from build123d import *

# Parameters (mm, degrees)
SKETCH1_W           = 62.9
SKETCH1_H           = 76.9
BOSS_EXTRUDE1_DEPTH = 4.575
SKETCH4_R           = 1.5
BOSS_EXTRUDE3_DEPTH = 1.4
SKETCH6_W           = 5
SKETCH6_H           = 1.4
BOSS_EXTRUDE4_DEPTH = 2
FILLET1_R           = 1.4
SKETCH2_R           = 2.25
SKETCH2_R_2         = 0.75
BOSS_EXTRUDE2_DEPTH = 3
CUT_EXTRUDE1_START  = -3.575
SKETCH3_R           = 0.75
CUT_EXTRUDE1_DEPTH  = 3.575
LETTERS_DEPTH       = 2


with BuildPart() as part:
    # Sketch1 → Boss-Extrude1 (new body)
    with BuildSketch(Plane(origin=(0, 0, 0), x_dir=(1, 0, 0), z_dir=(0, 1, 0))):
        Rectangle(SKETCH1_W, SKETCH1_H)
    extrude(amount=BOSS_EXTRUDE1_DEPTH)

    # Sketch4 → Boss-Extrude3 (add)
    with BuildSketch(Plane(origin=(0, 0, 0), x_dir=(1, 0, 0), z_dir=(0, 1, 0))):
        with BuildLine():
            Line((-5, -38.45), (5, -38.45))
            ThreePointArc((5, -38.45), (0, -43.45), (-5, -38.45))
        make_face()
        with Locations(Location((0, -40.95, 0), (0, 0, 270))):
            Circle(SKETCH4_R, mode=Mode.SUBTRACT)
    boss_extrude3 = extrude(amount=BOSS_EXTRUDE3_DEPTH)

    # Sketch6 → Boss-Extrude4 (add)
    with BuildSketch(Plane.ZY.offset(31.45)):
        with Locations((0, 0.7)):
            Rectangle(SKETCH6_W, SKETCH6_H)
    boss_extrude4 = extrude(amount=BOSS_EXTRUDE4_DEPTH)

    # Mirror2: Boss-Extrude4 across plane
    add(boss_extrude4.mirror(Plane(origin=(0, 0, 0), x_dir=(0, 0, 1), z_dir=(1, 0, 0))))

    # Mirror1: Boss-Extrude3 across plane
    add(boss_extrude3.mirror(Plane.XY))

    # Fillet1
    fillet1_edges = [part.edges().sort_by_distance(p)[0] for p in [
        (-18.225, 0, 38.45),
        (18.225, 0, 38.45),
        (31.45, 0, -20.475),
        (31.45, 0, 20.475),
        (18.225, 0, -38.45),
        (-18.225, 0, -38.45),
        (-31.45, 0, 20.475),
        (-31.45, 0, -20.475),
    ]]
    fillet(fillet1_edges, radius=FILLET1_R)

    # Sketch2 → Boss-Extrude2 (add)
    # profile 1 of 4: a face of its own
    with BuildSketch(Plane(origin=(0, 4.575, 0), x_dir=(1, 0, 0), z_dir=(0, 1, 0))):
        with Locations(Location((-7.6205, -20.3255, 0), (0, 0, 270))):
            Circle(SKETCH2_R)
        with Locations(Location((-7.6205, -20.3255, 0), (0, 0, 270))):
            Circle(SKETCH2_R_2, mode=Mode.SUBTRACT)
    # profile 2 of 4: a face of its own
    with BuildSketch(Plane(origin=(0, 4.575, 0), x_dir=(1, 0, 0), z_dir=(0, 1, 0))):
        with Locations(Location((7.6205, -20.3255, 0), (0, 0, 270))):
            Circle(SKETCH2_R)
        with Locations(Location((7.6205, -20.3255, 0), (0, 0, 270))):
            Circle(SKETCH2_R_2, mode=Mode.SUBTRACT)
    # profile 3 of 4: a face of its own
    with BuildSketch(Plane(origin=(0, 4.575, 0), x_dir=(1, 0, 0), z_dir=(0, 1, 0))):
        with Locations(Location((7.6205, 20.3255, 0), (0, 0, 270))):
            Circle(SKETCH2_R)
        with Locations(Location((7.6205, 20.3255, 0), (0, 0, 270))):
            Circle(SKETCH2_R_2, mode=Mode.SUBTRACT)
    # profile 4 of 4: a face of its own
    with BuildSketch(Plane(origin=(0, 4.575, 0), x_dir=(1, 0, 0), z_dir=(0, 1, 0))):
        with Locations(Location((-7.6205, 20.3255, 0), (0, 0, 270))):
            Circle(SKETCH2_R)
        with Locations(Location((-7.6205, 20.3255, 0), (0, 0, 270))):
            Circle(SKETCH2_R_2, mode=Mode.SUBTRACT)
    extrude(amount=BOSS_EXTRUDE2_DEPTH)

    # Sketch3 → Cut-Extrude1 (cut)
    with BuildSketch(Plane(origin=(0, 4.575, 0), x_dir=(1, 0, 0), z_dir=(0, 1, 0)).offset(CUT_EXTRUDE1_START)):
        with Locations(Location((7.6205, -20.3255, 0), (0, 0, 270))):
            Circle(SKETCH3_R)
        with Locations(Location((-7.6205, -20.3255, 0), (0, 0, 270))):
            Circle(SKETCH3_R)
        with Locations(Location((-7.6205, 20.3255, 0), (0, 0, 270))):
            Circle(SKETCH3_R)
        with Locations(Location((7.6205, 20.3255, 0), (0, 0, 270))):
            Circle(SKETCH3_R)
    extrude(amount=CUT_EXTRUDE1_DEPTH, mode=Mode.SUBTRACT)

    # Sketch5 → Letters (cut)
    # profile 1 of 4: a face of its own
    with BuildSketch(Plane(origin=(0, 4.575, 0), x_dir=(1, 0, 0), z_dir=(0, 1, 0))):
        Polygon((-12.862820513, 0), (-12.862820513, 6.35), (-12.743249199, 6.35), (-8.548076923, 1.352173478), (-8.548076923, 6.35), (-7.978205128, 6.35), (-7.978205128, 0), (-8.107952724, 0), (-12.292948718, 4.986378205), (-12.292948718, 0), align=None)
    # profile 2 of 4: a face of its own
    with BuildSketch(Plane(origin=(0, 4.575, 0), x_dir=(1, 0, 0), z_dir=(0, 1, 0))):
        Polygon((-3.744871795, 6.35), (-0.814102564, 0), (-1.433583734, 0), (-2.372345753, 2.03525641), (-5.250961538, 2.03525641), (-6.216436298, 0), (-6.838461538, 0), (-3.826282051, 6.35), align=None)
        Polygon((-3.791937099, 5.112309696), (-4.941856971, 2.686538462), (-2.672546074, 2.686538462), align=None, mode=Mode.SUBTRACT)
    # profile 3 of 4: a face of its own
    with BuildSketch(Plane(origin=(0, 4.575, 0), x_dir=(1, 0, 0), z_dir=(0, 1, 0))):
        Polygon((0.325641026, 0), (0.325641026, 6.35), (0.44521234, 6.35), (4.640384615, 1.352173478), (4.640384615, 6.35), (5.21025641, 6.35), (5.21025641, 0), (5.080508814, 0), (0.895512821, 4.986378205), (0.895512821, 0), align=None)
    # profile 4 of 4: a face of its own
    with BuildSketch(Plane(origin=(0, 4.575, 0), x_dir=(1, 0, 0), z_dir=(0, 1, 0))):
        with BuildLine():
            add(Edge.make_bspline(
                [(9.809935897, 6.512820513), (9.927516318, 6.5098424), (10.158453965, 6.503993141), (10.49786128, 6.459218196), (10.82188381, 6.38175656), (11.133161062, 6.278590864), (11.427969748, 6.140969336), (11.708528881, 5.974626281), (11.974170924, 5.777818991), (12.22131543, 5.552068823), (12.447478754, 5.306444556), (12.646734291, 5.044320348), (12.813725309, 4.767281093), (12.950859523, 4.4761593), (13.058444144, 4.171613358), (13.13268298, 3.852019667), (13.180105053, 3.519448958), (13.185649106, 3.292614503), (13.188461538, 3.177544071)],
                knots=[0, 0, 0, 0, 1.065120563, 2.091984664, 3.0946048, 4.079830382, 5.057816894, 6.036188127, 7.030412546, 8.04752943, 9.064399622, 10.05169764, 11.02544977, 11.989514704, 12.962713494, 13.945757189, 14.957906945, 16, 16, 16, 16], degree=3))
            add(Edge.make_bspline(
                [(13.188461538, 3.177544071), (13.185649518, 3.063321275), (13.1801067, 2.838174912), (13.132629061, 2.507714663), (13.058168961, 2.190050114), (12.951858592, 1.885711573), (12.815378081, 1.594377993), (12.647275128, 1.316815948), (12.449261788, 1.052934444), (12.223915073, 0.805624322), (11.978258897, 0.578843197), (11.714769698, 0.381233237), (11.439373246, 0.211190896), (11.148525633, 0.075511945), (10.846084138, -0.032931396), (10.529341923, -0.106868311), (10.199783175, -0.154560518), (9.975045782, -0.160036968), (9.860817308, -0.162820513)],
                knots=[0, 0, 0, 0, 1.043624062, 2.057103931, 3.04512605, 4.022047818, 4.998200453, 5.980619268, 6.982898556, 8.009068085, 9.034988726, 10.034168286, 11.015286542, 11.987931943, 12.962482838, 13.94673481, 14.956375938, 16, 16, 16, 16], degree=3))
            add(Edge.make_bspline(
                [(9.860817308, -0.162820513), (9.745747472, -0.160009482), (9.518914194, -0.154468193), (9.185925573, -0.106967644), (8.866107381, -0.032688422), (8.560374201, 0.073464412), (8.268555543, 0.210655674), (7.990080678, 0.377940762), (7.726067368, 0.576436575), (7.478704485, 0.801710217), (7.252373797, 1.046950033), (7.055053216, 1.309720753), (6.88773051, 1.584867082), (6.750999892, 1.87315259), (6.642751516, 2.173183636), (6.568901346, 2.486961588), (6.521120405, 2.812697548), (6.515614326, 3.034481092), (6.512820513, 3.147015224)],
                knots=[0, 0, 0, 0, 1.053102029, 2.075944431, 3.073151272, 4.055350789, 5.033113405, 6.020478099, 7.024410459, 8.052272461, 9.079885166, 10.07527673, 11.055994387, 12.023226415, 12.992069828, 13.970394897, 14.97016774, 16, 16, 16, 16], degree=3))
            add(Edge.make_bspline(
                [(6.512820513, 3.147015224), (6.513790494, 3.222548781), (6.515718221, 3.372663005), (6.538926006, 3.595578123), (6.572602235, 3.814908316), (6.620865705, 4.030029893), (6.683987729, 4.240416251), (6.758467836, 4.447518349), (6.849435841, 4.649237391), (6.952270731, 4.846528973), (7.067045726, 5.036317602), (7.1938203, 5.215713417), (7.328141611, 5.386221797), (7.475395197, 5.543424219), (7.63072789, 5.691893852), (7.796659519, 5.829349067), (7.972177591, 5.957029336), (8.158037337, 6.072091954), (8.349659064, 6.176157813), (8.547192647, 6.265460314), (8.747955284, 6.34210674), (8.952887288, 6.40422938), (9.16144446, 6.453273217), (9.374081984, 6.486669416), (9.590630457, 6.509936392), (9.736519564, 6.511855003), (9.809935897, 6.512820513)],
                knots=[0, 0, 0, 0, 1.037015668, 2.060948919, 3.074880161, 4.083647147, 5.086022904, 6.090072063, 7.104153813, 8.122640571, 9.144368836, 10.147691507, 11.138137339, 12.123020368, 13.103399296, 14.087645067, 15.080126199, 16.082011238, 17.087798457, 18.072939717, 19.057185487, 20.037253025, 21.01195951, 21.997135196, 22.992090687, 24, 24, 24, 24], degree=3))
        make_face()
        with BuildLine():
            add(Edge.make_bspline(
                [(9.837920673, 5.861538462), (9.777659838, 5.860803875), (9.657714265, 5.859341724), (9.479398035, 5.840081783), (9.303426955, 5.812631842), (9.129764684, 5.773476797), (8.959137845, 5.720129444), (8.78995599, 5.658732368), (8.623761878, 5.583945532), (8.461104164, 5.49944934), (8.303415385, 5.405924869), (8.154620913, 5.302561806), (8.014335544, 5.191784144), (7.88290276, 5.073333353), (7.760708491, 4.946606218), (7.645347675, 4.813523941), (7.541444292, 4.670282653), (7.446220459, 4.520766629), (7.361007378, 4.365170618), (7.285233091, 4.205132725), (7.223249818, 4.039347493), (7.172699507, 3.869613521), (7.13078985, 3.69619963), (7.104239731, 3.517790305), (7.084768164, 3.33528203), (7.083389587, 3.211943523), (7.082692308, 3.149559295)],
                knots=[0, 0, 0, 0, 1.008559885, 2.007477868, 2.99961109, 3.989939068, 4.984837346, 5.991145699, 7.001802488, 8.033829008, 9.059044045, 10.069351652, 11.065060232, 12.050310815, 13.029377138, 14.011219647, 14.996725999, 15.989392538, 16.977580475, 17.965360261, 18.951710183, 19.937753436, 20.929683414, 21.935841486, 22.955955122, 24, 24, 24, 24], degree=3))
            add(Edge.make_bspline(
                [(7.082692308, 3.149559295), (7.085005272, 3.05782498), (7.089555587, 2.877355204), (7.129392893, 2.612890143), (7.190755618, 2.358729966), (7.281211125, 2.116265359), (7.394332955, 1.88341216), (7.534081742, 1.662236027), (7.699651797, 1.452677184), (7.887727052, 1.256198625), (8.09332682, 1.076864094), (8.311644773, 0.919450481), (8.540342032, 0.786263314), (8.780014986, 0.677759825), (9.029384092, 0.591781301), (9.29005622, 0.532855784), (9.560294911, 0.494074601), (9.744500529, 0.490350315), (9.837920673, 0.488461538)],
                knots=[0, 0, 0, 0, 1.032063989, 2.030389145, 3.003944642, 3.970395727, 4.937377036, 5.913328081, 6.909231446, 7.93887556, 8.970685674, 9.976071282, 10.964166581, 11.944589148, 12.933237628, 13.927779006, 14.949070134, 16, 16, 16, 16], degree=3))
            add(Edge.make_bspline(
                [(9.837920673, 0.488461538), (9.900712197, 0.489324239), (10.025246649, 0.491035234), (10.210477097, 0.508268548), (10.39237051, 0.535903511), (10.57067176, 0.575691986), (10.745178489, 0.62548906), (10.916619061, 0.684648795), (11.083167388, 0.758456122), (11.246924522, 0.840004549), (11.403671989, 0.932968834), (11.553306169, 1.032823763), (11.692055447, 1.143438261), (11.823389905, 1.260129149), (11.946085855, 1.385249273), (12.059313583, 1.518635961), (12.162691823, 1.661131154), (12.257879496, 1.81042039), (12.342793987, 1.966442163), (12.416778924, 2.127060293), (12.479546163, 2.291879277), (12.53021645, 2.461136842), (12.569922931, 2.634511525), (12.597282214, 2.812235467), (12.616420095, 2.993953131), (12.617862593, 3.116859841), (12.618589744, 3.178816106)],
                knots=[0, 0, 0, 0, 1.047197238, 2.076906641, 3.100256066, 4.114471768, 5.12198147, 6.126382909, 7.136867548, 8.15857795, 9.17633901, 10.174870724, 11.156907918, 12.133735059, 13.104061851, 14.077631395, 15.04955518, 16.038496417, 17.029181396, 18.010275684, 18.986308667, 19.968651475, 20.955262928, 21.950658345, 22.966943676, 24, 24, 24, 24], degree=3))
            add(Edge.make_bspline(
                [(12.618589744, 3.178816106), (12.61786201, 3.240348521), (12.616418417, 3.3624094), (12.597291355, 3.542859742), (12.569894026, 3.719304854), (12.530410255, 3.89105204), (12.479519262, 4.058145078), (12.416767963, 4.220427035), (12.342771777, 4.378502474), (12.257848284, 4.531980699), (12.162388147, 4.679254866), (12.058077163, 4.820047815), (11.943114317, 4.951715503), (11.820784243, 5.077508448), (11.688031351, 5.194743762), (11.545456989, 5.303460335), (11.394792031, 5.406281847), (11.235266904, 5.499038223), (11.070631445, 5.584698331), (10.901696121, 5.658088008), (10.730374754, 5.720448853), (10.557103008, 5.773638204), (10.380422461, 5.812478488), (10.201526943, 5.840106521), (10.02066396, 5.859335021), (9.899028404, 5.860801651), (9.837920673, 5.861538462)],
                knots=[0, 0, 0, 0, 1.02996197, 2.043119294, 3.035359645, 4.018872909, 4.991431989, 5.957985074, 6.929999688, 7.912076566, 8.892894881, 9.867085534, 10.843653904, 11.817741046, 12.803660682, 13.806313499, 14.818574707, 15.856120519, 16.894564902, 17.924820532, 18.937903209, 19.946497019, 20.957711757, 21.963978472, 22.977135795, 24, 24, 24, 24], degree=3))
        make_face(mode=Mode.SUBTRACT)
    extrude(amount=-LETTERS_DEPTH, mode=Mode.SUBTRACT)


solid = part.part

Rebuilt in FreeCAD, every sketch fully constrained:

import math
import FreeCAD as App
import Part
import Sketcher
from FreeCAD import Vector
Q = App.Units.Quantity


def edges_at(feature, points):
    """Names of the edges that pass closest to the given points."""
    edges = feature.Shape.Edges
    near = lambda p: min(range(len(edges)), key=lambda i: edges[i].distToShape(Part.Vertex(*p))[0])
    return sorted({f"Edge{near(p) + 1}" for p in points})

doc = App.newDocument("Part")
params = doc.addObject("Spreadsheet::Sheet", "Params")
for row, (alias, value) in enumerate([
    ("sketch1_width", "62.9 mm"),
    ("sketch1_height", "76.9 mm"),
    ("pad1_length", "4.575 mm"),
    ("sketch2_diameter", "3 mm"),
    ("sketch2_radius", "5 mm"),
    ("pad2_length", "1.4 mm"),
    ("sketch3_height", "5 mm"),
    ("sketch3_width", "1.4 mm"),
    ("pad3_length", "2 mm"),
    ("fillet_radius", "1.4 mm"),
    ("sketch4_diameter", "4.5 mm"),
    ("sketch4_diameter2", "1.5 mm"),
    ("pad4_length", "3 mm"),
    ("sketch5_diameter", "1.5 mm"),
    ("pocket1_length", "3.575 mm"),
    ("sketch6_height", "6.35 mm"),
    ("pocket2_length", "2 mm"),
], start=1):
    params.set(f"A{row}", alias)
    params.set(f"B{row}", "=" + value)
    params.setAlias(f"B{row}", alias)

body = doc.addObject("PartDesign::Body", "Body")

sketch1 = body.newObject("Sketcher::SketchObject", "Sketch")
sketch1.AttachmentSupport = (doc.getObject("XZ_Plane"), [""])
sketch1.MapMode = "FlatFace"
sketch1.addGeometry([
    Part.LineSegment(Vector(-31, -38, 0), Vector(-31, 38, 0)),
    Part.LineSegment(Vector(-31, 38, 0), Vector(31, 38, 0)),
    Part.LineSegment(Vector(31, 38, 0), Vector(31, -38, 0)),
    Part.LineSegment(Vector(31, -38, 0), Vector(-31, -38, 0)),
], False)
sketch1.addConstraint([
    Sketcher.Constraint("Coincident", 0, 2, 1, 1),
    Sketcher.Constraint("Coincident", 1, 2, 2, 1),
    Sketcher.Constraint("Coincident", 2, 2, 3, 1),
    Sketcher.Constraint("Coincident", 3, 2, 0, 1),
    Sketcher.Constraint("Vertical", 0),
    Sketcher.Constraint("Horizontal", 1),
    Sketcher.Constraint("Vertical", 2),
    Sketcher.Constraint("Horizontal", 3),
    Sketcher.Constraint("Symmetric", 0, 2, 2, 2, -1, 1),
    Sketcher.Constraint("DistanceX", 1, 1, 1, 2, Q("62.9 mm")),
    Sketcher.Constraint("DistanceY", 0, 1, 0, 2, Q("76.9 mm")),
])
sketch1.setExpression("Constraints[9]", "Params.sketch1_width")
sketch1.setExpression("Constraints[10]", "Params.sketch1_height")
pad1 = body.newObject("PartDesign::Pad", "Pad")
pad1.Profile = sketch1
pad1.setExpression("Length", "Params.pad1_length")
pad1.Reversed = True

sketch2 = body.newObject("Sketcher::SketchObject", "Sketch001")
sketch2.AttachmentSupport = (doc.getObject("XZ_Plane"), [""])
sketch2.MapMode = "FlatFace"
sketch2.addGeometry([
    Part.LineSegment(Vector(5, 38.5, 0), Vector(-5, 38.5, 0)),
    Part.ArcOfCircle(Part.Circle(Vector(0, 38.5, 0), Vector(0, 0, 1), 5), math.radians(0), math.radians(180)),
    Part.Circle(Vector(0, 41, 0), Vector(0, 0, 1), 1.5),
], False)
sketch2.addConstraint([
    Sketcher.Constraint("Coincident", 0, 1, 1, 1),
    Sketcher.Constraint("Coincident", 1, 2, 0, 2),
    Sketcher.Constraint("Horizontal", 0),
    Sketcher.Constraint("PointOnObject", 1, 3, -2),
    Sketcher.Constraint("PointOnObject", 2, 3, -2),
    Sketcher.Constraint("Horizontal", 1, 3, 0, 1),
    Sketcher.Constraint("Diameter", 2, Q("3 mm")),
    Sketcher.Constraint("Radius", 1, Q("5 mm")),
    Sketcher.Constraint("DistanceY", 1, 3, 2, 3, Q("2.5 mm")),
    Sketcher.Constraint("DistanceY", -1, 1, 1, 3, Q("38.45 mm")),
])
sketch2.setExpression("Constraints[6]", "Params.sketch2_diameter")
sketch2.setExpression("Constraints[7]", "Params.sketch2_radius")
pad2 = body.newObject("PartDesign::Pad", "Pad001")
pad2.Profile = sketch2
pad2.setExpression("Length", "Params.pad2_length")
pad2.Reversed = True

sketch3 = body.newObject("Sketcher::SketchObject", "Sketch002")
sketch3.AttachmentSupport = (doc.getObject("YZ_Plane"), [""])
sketch3.MapMode = "FlatFace"
sketch3.AttachmentOffset = App.Placement(Vector(0, 0, -31.45), App.Rotation())
sketch3.addGeometry([
    Part.LineSegment(Vector(1.4, -2.5, 0), Vector(0, -2.5, 0)),
    Part.LineSegment(Vector(0, -2.5, 0), Vector(0, 2.5, 0)),
    Part.LineSegment(Vector(0, 2.5, 0), Vector(1.4, 2.5, 0)),
    Part.LineSegment(Vector(1.4, 2.5, 0), Vector(1.4, -2.5, 0)),
], False)
sketch3.addConstraint([
    Sketcher.Constraint("Coincident", 0, 2, 1, 1),
    Sketcher.Constraint("Coincident", 1, 2, 2, 1),
    Sketcher.Constraint("Coincident", 2, 2, 3, 1),
    Sketcher.Constraint("Coincident", 3, 2, 0, 1),
    Sketcher.Constraint("Horizontal", 0),
    Sketcher.Constraint("Vertical", 1),
    Sketcher.Constraint("Horizontal", 2),
    Sketcher.Constraint("Vertical", 3),
    Sketcher.Constraint("Symmetric", 0, 2, 1, 2, -1, 1),
    Sketcher.Constraint("DistanceY", 1, 1, 1, 2, Q("5 mm")),
    Sketcher.Constraint("DistanceX", 0, 2, 0, 1, Q("1.4 mm")),
])
sketch3.setExpression("Constraints[9]", "Params.sketch3_height")
sketch3.setExpression("Constraints[10]", "Params.sketch3_width")
pad3 = body.newObject("PartDesign::Pad", "Pad002")
pad3.Profile = sketch3
pad3.setExpression("Length", "Params.pad3_length")
pad3.Reversed = True
doc.recompute()

mirrored = body.newObject("PartDesign::Mirrored", "Mirrored")
mirrored.Originals = [pad3]
mirrored.MirrorPlane = (doc.getObject("YZ_Plane"), [""])
body.Tip = mirrored
doc.recompute()

mirrored2 = body.newObject("PartDesign::Mirrored", "Mirrored001")
mirrored2.Originals = [pad2]
mirrored2.MirrorPlane = (doc.getObject("XY_Plane"), [""])
body.Tip = mirrored2
doc.recompute()

fillet = body.newObject("PartDesign::Fillet", "Fillet")
fillet.Base = (mirrored2, edges_at(mirrored2, [
    (-18.225, 0, 38.45),
    (18.225, 0, 38.45),
    (31.45, 0, -20.475),
    (31.45, 0, 20.475),
    (18.225, 0, -38.45),
    (-18.225, 0, -38.45),
    (-31.45, 0, 20.475),
    (-31.45, 0, -20.475),
]))
fillet.setExpression("Radius", "Params.fillet_radius")

sketch4 = body.newObject("Sketcher::SketchObject", "Sketch003")
sketch4.AttachmentSupport = (doc.getObject("XZ_Plane"), [""])
sketch4.MapMode = "FlatFace"
sketch4.AttachmentOffset = App.Placement(Vector(0, 0, -4.575), App.Rotation())
sketch4.addGeometry([
    Part.Circle(Vector(-7.6, 20.3, 0), Vector(0, 0, 1), 2.2),
    Part.Circle(Vector(-7.6, 20.3, 0), Vector(0, 0, 1), 0.8),
    Part.Circle(Vector(7.6, 20.3, 0), Vector(0, 0, 1), 2.2),
    Part.Circle(Vector(7.6, 20.3, 0), Vector(0, 0, 1), 0.8),
    Part.Circle(Vector(7.6, -20.3, 0), Vector(0, 0, 1), 2.2),
    Part.Circle(Vector(7.6, -20.3, 0), Vector(0, 0, 1), 0.8),
    Part.Circle(Vector(-7.6, -20.3, 0), Vector(0, 0, 1), 2.2),
    Part.Circle(Vector(-7.6, -20.3, 0), Vector(0, 0, 1), 0.8),
], False)
sketch4.addConstraint([
    Sketcher.Constraint("Coincident", 1, 3, 0, 3),
    Sketcher.Constraint("Coincident", 3, 3, 2, 3),
    Sketcher.Constraint("Coincident", 5, 3, 4, 3),
    Sketcher.Constraint("Coincident", 7, 3, 6, 3),
    Sketcher.Constraint("Equal", 0, 2),
    Sketcher.Constraint("Equal", 1, 3),
    Sketcher.Constraint("Equal", 2, 4),
    Sketcher.Constraint("Equal", 3, 5),
    Sketcher.Constraint("Equal", 4, 6),
    Sketcher.Constraint("Equal", 5, 7),
    Sketcher.Constraint("Symmetric", 0, 3, 4, 3, -1, 1),
    Sketcher.Constraint("Symmetric", 2, 3, 6, 3, -1, 1),
    Sketcher.Constraint("Symmetric", 0, 3, 2, 3, -2),
    Sketcher.Constraint("Diameter", 0, Q("4.5 mm")),
    Sketcher.Constraint("Diameter", 1, Q("1.5 mm")),
    Sketcher.Constraint("DistanceX", 0, 3, 2, 3, Q("15.241 mm")),
    Sketcher.Constraint("DistanceY", 4, 3, 2, 3, Q("40.651 mm")),
])
sketch4.setExpression("Constraints[13]", "Params.sketch4_diameter")
sketch4.setExpression("Constraints[14]", "Params.sketch4_diameter2")
pad4 = body.newObject("PartDesign::Pad", "Pad003")
pad4.Profile = sketch4
pad4.setExpression("Length", "Params.pad4_length")
pad4.Reversed = True

sketch5 = body.newObject("Sketcher::SketchObject", "Sketch004")
sketch5.AttachmentSupport = (doc.getObject("XZ_Plane"), [""])
sketch5.MapMode = "FlatFace"
sketch5.AttachmentOffset = App.Placement(Vector(0, 0, -1), App.Rotation())
sketch5.addGeometry([
    Part.Circle(Vector(7.6, 20.3, 0), Vector(0, 0, 1), 0.8),
    Part.Circle(Vector(-7.6, 20.3, 0), Vector(0, 0, 1), 0.8),
    Part.Circle(Vector(-7.6, -20.3, 0), Vector(0, 0, 1), 0.8),
    Part.Circle(Vector(7.6, -20.3, 0), Vector(0, 0, 1), 0.8),
], False)
sketch5.addConstraint([
    Sketcher.Constraint("Equal", 0, 1),
    Sketcher.Constraint("Equal", 1, 2),
    Sketcher.Constraint("Equal", 2, 3),
    Sketcher.Constraint("Symmetric", 0, 3, 2, 3, -1, 1),
    Sketcher.Constraint("Symmetric", 1, 3, 3, 3, -1, 1),
    Sketcher.Constraint("Symmetric", 0, 3, 1, 3, -2),
    Sketcher.Constraint("Diameter", 0, Q("1.5 mm")),
    Sketcher.Constraint("DistanceX", 1, 3, 0, 3, Q("15.241 mm")),
    Sketcher.Constraint("DistanceY", 2, 3, 1, 3, Q("40.651 mm")),
])
sketch5.setExpression("Constraints[6]", "Params.sketch5_diameter")
pocket1 = body.newObject("PartDesign::Pocket", "Pocket")
pocket1.Profile = sketch5
pocket1.setExpression("Length", "Params.pocket1_length")

sketch6 = body.newObject("Sketcher::SketchObject", "Sketch005")
sketch6.AttachmentSupport = (doc.getObject("XZ_Plane"), [""])
sketch6.MapMode = "FlatFace"
sketch6.AttachmentOffset = App.Placement(Vector(0, 0, -4.575), App.Rotation())
sketch6.addGeometry([
    Part.LineSegment(Vector(-12.862821, -6.35, 0), Vector(-12.862821, 0, 0)),
    Part.LineSegment(Vector(-12.862821, 0, 0), Vector(-12.292949, 0, 0)),
    Part.LineSegment(Vector(-12.292949, 0, 0), Vector(-12.292949, -4.986378, 0)),
    Part.LineSegment(Vector(-12.292949, -4.986378, 0), Vector(-8.107953, 0, 0)),
    Part.LineSegment(Vector(-8.107953, 0, 0), Vector(-7.978205, 0, 0)),
    Part.LineSegment(Vector(-7.978205, 0, 0), Vector(-7.978205, -6.35, 0)),
    Part.LineSegment(Vector(-7.978205, -6.35, 0), Vector(-8.548077, -6.35, 0)),
    Part.LineSegment(Vector(-8.548077, -6.35, 0), Vector(-8.548077, -1.352173, 0)),
    Part.LineSegment(Vector(-8.548077, -1.352173, 0), Vector(-12.743249, -6.35, 0)),
    Part.LineSegment(Vector(-12.743249, -6.35, 0), Vector(-12.862821, -6.35, 0)),
    Part.LineSegment(Vector(-0.814103, 0, 0), Vector(-3.744872, -6.35, 0)),
    Part.LineSegment(Vector(-3.744872, -6.35, 0), Vector(-3.826282, -6.35, 0)),
    Part.LineSegment(Vector(-3.826282, -6.35, 0), Vector(-6.838462, 0, 0)),
    Part.LineSegment(Vector(-6.838462, 0, 0), Vector(-6.216436, 0, 0)),
    Part.LineSegment(Vector(-6.216436, 0, 0), Vector(-5.250962, -2.035256, 0)),
    Part.LineSegment(Vector(-5.250962, -2.035256, 0), Vector(-2.372346, -2.035256, 0)),
    Part.LineSegment(Vector(-2.372346, -2.035256, 0), Vector(-1.433584, 0, 0)),
    Part.LineSegment(Vector(-1.433584, 0, 0), Vector(-0.814103, 0, 0)),
    Part.LineSegment(Vector(-3.791937, -5.11231, 0), Vector(-2.672546, -2.686538, 0)),
    Part.LineSegment(Vector(-2.672546, -2.686538, 0), Vector(-4.941857, -2.686538, 0)),
    Part.LineSegment(Vector(-4.941857, -2.686538, 0), Vector(-3.791937, -5.11231, 0)),
    Part.LineSegment(Vector(0.325641, -6.35, 0), Vector(0.325641, 0, 0)),
    Part.LineSegment(Vector(0.325641, 0, 0), Vector(0.895513, 0, 0)),
    Part.LineSegment(Vector(0.895513, 0, 0), Vector(0.895513, -4.986378, 0)),
    Part.LineSegment(Vector(0.895513, -4.986378, 0), Vector(5.080509, 0, 0)),
    Part.LineSegment(Vector(5.080509, 0, 0), Vector(5.210256, 0, 0)),
    Part.LineSegment(Vector(5.210256, 0, 0), Vector(5.210256, -6.35, 0)),
    Part.LineSegment(Vector(5.210256, -6.35, 0), Vector(4.640385, -6.35, 0)),
    Part.LineSegment(Vector(4.640385, -6.35, 0), Vector(4.640385, -1.352173, 0)),
    Part.LineSegment(Vector(4.640385, -1.352173, 0), Vector(0.445212, -6.35, 0)),
    Part.LineSegment(Vector(0.445212, -6.35, 0), Vector(0.325641, -6.35, 0)),
    Part.BSplineCurve([Vector(9.809936, -6.512821, 0), Vector(9.927516, -6.509842, 0), Vector(10.158454, -6.503993, 0), Vector(10.497861, -6.459218, 0), Vector(10.821884, -6.381757, 0), Vector(11.133161, -6.278591, 0), Vector(11.42797, -6.140969, 0), Vector(11.708529, -5.974626, 0), Vector(11.974171, -5.777819, 0), Vector(12.221315, -5.552069, 0), Vector(12.447479, -5.306445, 0), Vector(12.646734, -5.04432, 0), Vector(12.813725, -4.767281, 0), Vector(12.95086, -4.476159, 0), Vector(13.058444, -4.171613, 0), Vector(13.132683, -3.85202, 0), Vector(13.180105, -3.519449, 0), Vector(13.185649, -3.292615, 0), Vector(13.188462, -3.177544, 0)], [4, 1, 1, 1, 1, 1, 1, 1, 1, 1, 1, 1, 1, 1, 1, 1, 4], [0, 1.065120563, 2.091984664, 3.0946048, 4.079830382, 5.057816894, 6.036188127, 7.030412546, 8.04752943, 9.064399622, 10.05169764, 11.02544977, 11.989514704, 12.962713494, 13.945757189, 14.957906945, 16], False, 3, [1, 1, 1, 1, 1, 1, 1, 1, 1, 1, 1, 1, 1, 1, 1, 1, 1, 1, 1], False),
    Part.BSplineCurve([Vector(6.512821, -3.147015, 0), Vector(6.51379, -3.222549, 0), Vector(6.515718, -3.372663, 0), Vector(6.538926, -3.595578, 0), Vector(6.572602, -3.814908, 0), Vector(6.620866, -4.03003, 0), Vector(6.683988, -4.240416, 0), Vector(6.758468, -4.447518, 0), Vector(6.849436, -4.649237, 0), Vector(6.952271, -4.846529, 0), Vector(7.067046, -5.036318, 0), Vector(7.19382, -5.215713, 0), Vector(7.328142, -5.386222, 0), Vector(7.475395, -5.543424, 0), Vector(7.630728, -5.691894, 0), Vector(7.79666, -5.829349, 0), Vector(7.972178, -5.957029, 0), Vector(8.158037, -6.072092, 0), Vector(8.349659, -6.176158, 0), Vector(8.547193, -6.26546, 0), Vector(8.747955, -6.342107, 0), Vector(8.952887, -6.404229, 0), Vector(9.161444, -6.453273, 0), Vector(9.374082, -6.486669, 0), Vector(9.59063, -6.509936, 0), Vector(9.73652, -6.511855, 0), Vector(9.809936, -6.512821, 0)], [4, 1, 1, 1, 1, 1, 1, 1, 1, 1, 1, 1, 1, 1, 1, 1, 1, 1, 1, 1, 1, 1, 1, 1, 4], [0, 1.037015668, 2.060948919, 3.074880161, 4.083647147, 5.086022904, 6.090072063, 7.104153813, 8.122640571, 9.144368836, 10.147691507, 11.138137339, 12.123020368, 13.103399296, 14.087645067, 15.080126199, 16.082011238, 17.087798457, 18.072939717, 19.057185487, 20.037253025, 21.01195951, 21.997135196, 22.992090687, 24], False, 3, [1, 1, 1, 1, 1, 1, 1, 1, 1, 1, 1, 1, 1, 1, 1, 1, 1, 1, 1, 1, 1, 1, 1, 1, 1, 1, 1], False),
    Part.BSplineCurve([Vector(9.860817, 0.162821, 0), Vector(9.745747, 0.160009, 0), Vector(9.518914, 0.154468, 0), Vector(9.185926, 0.106968, 0), Vector(8.866107, 0.032688, 0), Vector(8.560374, -0.073464, 0), Vector(8.268556, -0.210656, 0), Vector(7.990081, -0.377941, 0), Vector(7.726067, -0.576437, 0), Vector(7.478704, -0.80171, 0), Vector(7.252374, -1.04695, 0), Vector(7.055053, -1.309721, 0), Vector(6.887731, -1.584867, 0), Vector(6.751, -1.873153, 0), Vector(6.642752, -2.173184, 0), Vector(6.568901, -2.486962, 0), Vector(6.52112, -2.812698, 0), Vector(6.515614, -3.034481, 0), Vector(6.512821, -3.147015, 0)], [4, 1, 1, 1, 1, 1, 1, 1, 1, 1, 1, 1, 1, 1, 1, 1, 4], [0, 1.053102029, 2.075944431, 3.073151272, 4.055350789, 5.033113405, 6.020478099, 7.024410459, 8.052272461, 9.079885166, 10.07527673, 11.055994387, 12.023226415, 12.992069828, 13.970394897, 14.97016774, 16], False, 3, [1, 1, 1, 1, 1, 1, 1, 1, 1, 1, 1, 1, 1, 1, 1, 1, 1, 1, 1], False),
    Part.BSplineCurve([Vector(13.188462, -3.177544, 0), Vector(13.18565, -3.063321, 0), Vector(13.180107, -2.838175, 0), Vector(13.132629, -2.507715, 0), Vector(13.058169, -2.19005, 0), Vector(12.951859, -1.885712, 0), Vector(12.815378, -1.594378, 0), Vector(12.647275, -1.316816, 0), Vector(12.449262, -1.052934, 0), Vector(12.223915, -0.805624, 0), Vector(11.978259, -0.578843, 0), Vector(11.71477, -0.381233, 0), Vector(11.439373, -0.211191, 0), Vector(11.148526, -0.075512, 0), Vector(10.846084, 0.032931, 0), Vector(10.529342, 0.106868, 0), Vector(10.199783, 0.154561, 0), Vector(9.975046, 0.160037, 0), Vector(9.860817, 0.162821, 0)], [4, 1, 1, 1, 1, 1, 1, 1, 1, 1, 1, 1, 1, 1, 1, 1, 4], [0, 1.043624062, 2.057103931, 3.04512605, 4.022047818, 4.998200453, 5.980619268, 6.982898556, 8.009068085, 9.034988726, 10.034168286, 11.015286542, 11.987931943, 12.962482838, 13.94673481, 14.956375938, 16], False, 3, [1, 1, 1, 1, 1, 1, 1, 1, 1, 1, 1, 1, 1, 1, 1, 1, 1, 1, 1], False),
    Part.BSplineCurve([Vector(12.61859, -3.178816, 0), Vector(12.617862, -3.240349, 0), Vector(12.616418, -3.362409, 0), Vector(12.597291, -3.54286, 0), Vector(12.569894, -3.719305, 0), Vector(12.53041, -3.891052, 0), Vector(12.479519, -4.058145, 0), Vector(12.416768, -4.220427, 0), Vector(12.342772, -4.378502, 0), Vector(12.257848, -4.531981, 0), Vector(12.162388, -4.679255, 0), Vector(12.058077, -4.820048, 0), Vector(11.943114, -4.951716, 0), Vector(11.820784, -5.077508, 0), Vector(11.688031, -5.194744, 0), Vector(11.545457, -5.30346, 0), Vector(11.394792, -5.406282, 0), Vector(11.235267, -5.499038, 0), Vector(11.070631, -5.584698, 0), Vector(10.901696, -5.658088, 0), Vector(10.730375, -5.720449, 0), Vector(10.557103, -5.773638, 0), Vector(10.380422, -5.812478, 0), Vector(10.201527, -5.840107, 0), Vector(10.020664, -5.859335, 0), Vector(9.899028, -5.860802, 0), Vector(9.837921, -5.861538, 0)], [4, 1, 1, 1, 1, 1, 1, 1, 1, 1, 1, 1, 1, 1, 1, 1, 1, 1, 1, 1, 1, 1, 1, 1, 4], [0, 1.02996197, 2.043119294, 3.035359645, 4.018872909, 4.991431989, 5.957985074, 6.929999688, 7.912076566, 8.892894881, 9.867085534, 10.843653904, 11.817741046, 12.803660682, 13.806313499, 14.818574707, 15.856120519, 16.894564902, 17.924820532, 18.937903209, 19.946497019, 20.957711757, 21.963978472, 22.977135795, 24], False, 3, [1, 1, 1, 1, 1, 1, 1, 1, 1, 1, 1, 1, 1, 1, 1, 1, 1, 1, 1, 1, 1, 1, 1, 1, 1, 1, 1], False),
    Part.BSplineCurve([Vector(9.837921, -0.488462, 0), Vector(9.900712, -0.489324, 0), Vector(10.025247, -0.491035, 0), Vector(10.210477, -0.508269, 0), Vector(10.392371, -0.535904, 0), Vector(10.570672, -0.575692, 0), Vector(10.745178, -0.625489, 0), Vector(10.916619, -0.684649, 0), Vector(11.083167, -0.758456, 0), Vector(11.246925, -0.840005, 0), Vector(11.403672, -0.932969, 0), Vector(11.553306, -1.032824, 0), Vector(11.692055, -1.143438, 0), Vector(11.82339, -1.260129, 0), Vector(11.946086, -1.385249, 0), Vector(12.059314, -1.518636, 0), Vector(12.162692, -1.661131, 0), Vector(12.257879, -1.81042, 0), Vector(12.342794, -1.966442, 0), Vector(12.416779, -2.12706, 0), Vector(12.479546, -2.291879, 0), Vector(12.530216, -2.461137, 0), Vector(12.569923, -2.634512, 0), Vector(12.597282, -2.812235, 0), Vector(12.61642, -2.993953, 0), Vector(12.617863, -3.11686, 0), Vector(12.61859, -3.178816, 0)], [4, 1, 1, 1, 1, 1, 1, 1, 1, 1, 1, 1, 1, 1, 1, 1, 1, 1, 1, 1, 1, 1, 1, 1, 4], [0, 1.047197238, 2.076906641, 3.100256066, 4.114471768, 5.12198147, 6.126382909, 7.136867548, 8.15857795, 9.17633901, 10.174870724, 11.156907918, 12.133735059, 13.104061851, 14.077631395, 15.04955518, 16.038496417, 17.029181396, 18.010275684, 18.986308667, 19.968651475, 20.955262928, 21.950658345, 22.966943676, 24], False, 3, [1, 1, 1, 1, 1, 1, 1, 1, 1, 1, 1, 1, 1, 1, 1, 1, 1, 1, 1, 1, 1, 1, 1, 1, 1, 1, 1], False),
    Part.BSplineCurve([Vector(7.082692, -3.149559, 0), Vector(7.085005, -3.057825, 0), Vector(7.089556, -2.877355, 0), Vector(7.129393, -2.61289, 0), Vector(7.190756, -2.35873, 0), Vector(7.281211, -2.116265, 0), Vector(7.394333, -1.883412, 0), Vector(7.534082, -1.662236, 0), Vector(7.699652, -1.452677, 0), Vector(7.887727, -1.256199, 0), Vector(8.093327, -1.076864, 0), Vector(8.311645, -0.91945, 0), Vector(8.540342, -0.786263, 0), Vector(8.780015, -0.67776, 0), Vector(9.029384, -0.591781, 0), Vector(9.290056, -0.532856, 0), Vector(9.560295, -0.494075, 0), Vector(9.744501, -0.49035, 0), Vector(9.837921, -0.488462, 0)], [4, 1, 1, 1, 1, 1, 1, 1, 1, 1, 1, 1, 1, 1, 1, 1, 4], [0, 1.032063989, 2.030389145, 3.003944642, 3.970395727, 4.937377036, 5.913328081, 6.909231446, 7.93887556, 8.970685674, 9.976071282, 10.964166581, 11.944589148, 12.933237628, 13.927779006, 14.949070134, 16], False, 3, [1, 1, 1, 1, 1, 1, 1, 1, 1, 1, 1, 1, 1, 1, 1, 1, 1, 1, 1], False),
    Part.BSplineCurve([Vector(9.837921, -5.861538, 0), Vector(9.77766, -5.860804, 0), Vector(9.657714, -5.859342, 0), Vector(9.479398, -5.840082, 0), Vector(9.303427, -5.812632, 0), Vector(9.129765, -5.773477, 0), Vector(8.959138, -5.720129, 0), Vector(8.789956, -5.658732, 0), Vector(8.623762, -5.583946, 0), Vector(8.461104, -5.499449, 0), Vector(8.303415, -5.405925, 0), Vector(8.154621, -5.302562, 0), Vector(8.014336, -5.191784, 0), Vector(7.882903, -5.073333, 0), Vector(7.760708, -4.946606, 0), Vector(7.645348, -4.813524, 0), Vector(7.541444, -4.670283, 0), Vector(7.44622, -4.520767, 0), Vector(7.361007, -4.365171, 0), Vector(7.285233, -4.205133, 0), Vector(7.22325, -4.039347, 0), Vector(7.1727, -3.869614, 0), Vector(7.13079, -3.6962, 0), Vector(7.10424, -3.51779, 0), Vector(7.084768, -3.335282, 0), Vector(7.08339, -3.211944, 0), Vector(7.082692, -3.149559, 0)], [4, 1, 1, 1, 1, 1, 1, 1, 1, 1, 1, 1, 1, 1, 1, 1, 1, 1, 1, 1, 1, 1, 1, 1, 4], [0, 1.008559885, 2.007477868, 2.99961109, 3.989939068, 4.984837346, 5.991145699, 7.001802488, 8.033829008, 9.059044045, 10.069351652, 11.065060232, 12.050310815, 13.029377138, 14.011219647, 14.996725999, 15.989392538, 16.977580475, 17.965360261, 18.951710183, 19.937753436, 20.929683414, 21.935841486, 22.955955122, 24], False, 3, [1, 1, 1, 1, 1, 1, 1, 1, 1, 1, 1, 1, 1, 1, 1, 1, 1, 1, 1, 1, 1, 1, 1, 1, 1, 1, 1], False),
], False)
sketch6.addConstraint([
    Sketcher.Constraint("Block", 31),
    Sketcher.Constraint("Block", 32),
    Sketcher.Constraint("Block", 33),
    Sketcher.Constraint("Block", 34),
    Sketcher.Constraint("Block", 35),
    Sketcher.Constraint("Block", 36),
    Sketcher.Constraint("Block", 37),
    Sketcher.Constraint("Block", 38),
    Sketcher.Constraint("Coincident", 0, 2, 1, 1),
    Sketcher.Constraint("Coincident", 1, 2, 2, 1),
    Sketcher.Constraint("Coincident", 2, 2, 3, 1),
    Sketcher.Constraint("Coincident", 3, 2, 4, 1),
    Sketcher.Constraint("Coincident", 4, 2, 5, 1),
    Sketcher.Constraint("Coincident", 5, 2, 6, 1),
    Sketcher.Constraint("Coincident", 6, 2, 7, 1),
    Sketcher.Constraint("Coincident", 7, 2, 8, 1),
    Sketcher.Constraint("Coincident", 8, 2, 9, 1),
    Sketcher.Constraint("Coincident", 9, 2, 0, 1),
    Sketcher.Constraint("Coincident", 10, 2, 11, 1),
    Sketcher.Constraint("Coincident", 11, 2, 12, 1),
    Sketcher.Constraint("Coincident", 12, 2, 13, 1),
    Sketcher.Constraint("Coincident", 13, 2, 14, 1),
    Sketcher.Constraint("Coincident", 14, 2, 15, 1),
    Sketcher.Constraint("Coincident", 15, 2, 16, 1),
    Sketcher.Constraint("Coincident", 16, 2, 17, 1),
    Sketcher.Constraint("Coincident", 17, 2, 10, 1),
    Sketcher.Constraint("Coincident", 18, 2, 19, 1),
    Sketcher.Constraint("Coincident", 19, 2, 20, 1),
    Sketcher.Constraint("Coincident", 20, 2, 18, 1),
    Sketcher.Constraint("Coincident", 21, 2, 22, 1),
    Sketcher.Constraint("Coincident", 22, 2, 23, 1),
    Sketcher.Constraint("Coincident", 23, 2, 24, 1),
    Sketcher.Constraint("Coincident", 24, 2, 25, 1),
    Sketcher.Constraint("Coincident", 25, 2, 26, 1),
    Sketcher.Constraint("Coincident", 26, 2, 27, 1),
    Sketcher.Constraint("Coincident", 27, 2, 28, 1),
    Sketcher.Constraint("Coincident", 28, 2, 29, 1),
    Sketcher.Constraint("Coincident", 29, 2, 30, 1),
    Sketcher.Constraint("Coincident", 30, 2, 21, 1),
    Sketcher.Constraint("Vertical", 0),
    Sketcher.Constraint("Horizontal", 1),
    Sketcher.Constraint("Vertical", 2),
    Sketcher.Constraint("Horizontal", 4),
    Sketcher.Constraint("Vertical", 5),
    Sketcher.Constraint("Horizontal", 6),
    Sketcher.Constraint("Vertical", 7),
    Sketcher.Constraint("Horizontal", 9),
    Sketcher.Constraint("Horizontal", 11),
    Sketcher.Constraint("Horizontal", 13),
    Sketcher.Constraint("Horizontal", 15),
    Sketcher.Constraint("Horizontal", 17),
    Sketcher.Constraint("Horizontal", 19),
    Sketcher.Constraint("Vertical", 21),
    Sketcher.Constraint("Horizontal", 22),
    Sketcher.Constraint("Vertical", 23),
    Sketcher.Constraint("Horizontal", 25),
    Sketcher.Constraint("Vertical", 26),
    Sketcher.Constraint("Horizontal", 27),
    Sketcher.Constraint("Vertical", 28),
    Sketcher.Constraint("Horizontal", 30),
    Sketcher.Constraint("PointOnObject", 0, 2, -1),
    Sketcher.Constraint("PointOnObject", 3, 2, -1),
    Sketcher.Constraint("PointOnObject", 12, 2, -1),
    Sketcher.Constraint("PointOnObject", 16, 2, -1),
    Sketcher.Constraint("PointOnObject", 21, 2, -1),
    Sketcher.Constraint("PointOnObject", 24, 2, -1),
    Sketcher.Constraint("Parallel", 3, 24),
    Sketcher.Constraint("Parallel", 8, 29),
    Sketcher.Constraint("Horizontal", 6, 2, 8, 2),
    Sketcher.Constraint("Horizontal", 9, 2, 10, 2),
    Sketcher.Constraint("Horizontal", 2, 2, 23, 2),
    Sketcher.Constraint("Horizontal", 11, 2, 26, 2),
    Sketcher.Constraint("Horizontal", 7, 2, 28, 2),
    Sketcher.Constraint("Horizontal", 27, 2, 29, 2),
    Sketcher.Constraint("Equal", 1, 6),
    Sketcher.Constraint("Equal", 6, 22),
    Sketcher.Constraint("Equal", 4, 25),
    Sketcher.Constraint("Equal", 22, 27),
    Sketcher.Constraint("DistanceY", 0, 1, 0, 2, Q("6.35 mm")),
    Sketcher.Constraint("DistanceX", 1, 1, 1, 2, Q("0.569872 mm")),
    Sketcher.Constraint("DistanceX", 9, 2, 9, 1, Q("0.119571 mm")),
    Sketcher.Constraint("DistanceX", 11, 2, 11, 1, Q("0.08141 mm")),
    Sketcher.Constraint("DistanceX", 17, 1, 17, 2, Q("0.619481 mm")),
    Sketcher.Constraint("DistanceX", 19, 2, 19, 1, Q("2.269311 mm")),
    Sketcher.Constraint("DistanceY", 2, 2, 2, 1, Q("4.986378 mm")),
    Sketcher.Constraint("DistanceX", 12, 2, 14, 2, Q("1.5875 mm")),
    Sketcher.Constraint("DistanceX", 18, 2, 15, 2, Q("0.3002 mm")),
    Sketcher.Constraint("Distance", 3, Q("6.509851 mm")),
    Sketcher.Constraint("Distance", 12, Q("7.028209 mm")),
    Sketcher.Constraint("Distance", 18, Q("2.671592 mm")),
    Sketcher.Constraint("DistanceX", 4, 1, 4, 2, Q("0.129748 mm")),
    Sketcher.Constraint("DistanceX", 13, 1, 13, 2, Q("0.622025 mm")),
    Sketcher.Constraint("DistanceX", 15, 1, 15, 2, Q("2.878616 mm")),
    Sketcher.Constraint("DistanceY", 7, 1, 7, 2, Q("4.997827 mm")),
    Sketcher.Constraint("DistanceX", 0, 2, -1, 1, Q("12.862821 mm")),
    Sketcher.Constraint("DistanceX", 10, 2, -1, 1, Q("3.744872 mm")),
    Sketcher.Constraint("DistanceY", 18, 2, -1, 1, Q("2.686538 mm")),
    Sketcher.Constraint("DistanceY", 20, 2, -1, 1, Q("5.11231 mm")),
    Sketcher.Constraint("DistanceX", -1, 1, 21, 2, Q("0.325641 mm")),
    Sketcher.Constraint("DistanceX", 4, 2, 16, 2, Q("6.544621 mm")),
    Sketcher.Constraint("DistanceY", 23, 2, 15, 2, Q("2.951122 mm")),
])
sketch6.setExpression("Constraints[78]", "Params.sketch6_height")
pocket2 = body.newObject("PartDesign::Pocket", "Pocket001")
pocket2.Profile = sketch6
pocket2.setExpression("Length", "Params.pocket2_length")
pocket2.Reversed = True

doc.recompute()
